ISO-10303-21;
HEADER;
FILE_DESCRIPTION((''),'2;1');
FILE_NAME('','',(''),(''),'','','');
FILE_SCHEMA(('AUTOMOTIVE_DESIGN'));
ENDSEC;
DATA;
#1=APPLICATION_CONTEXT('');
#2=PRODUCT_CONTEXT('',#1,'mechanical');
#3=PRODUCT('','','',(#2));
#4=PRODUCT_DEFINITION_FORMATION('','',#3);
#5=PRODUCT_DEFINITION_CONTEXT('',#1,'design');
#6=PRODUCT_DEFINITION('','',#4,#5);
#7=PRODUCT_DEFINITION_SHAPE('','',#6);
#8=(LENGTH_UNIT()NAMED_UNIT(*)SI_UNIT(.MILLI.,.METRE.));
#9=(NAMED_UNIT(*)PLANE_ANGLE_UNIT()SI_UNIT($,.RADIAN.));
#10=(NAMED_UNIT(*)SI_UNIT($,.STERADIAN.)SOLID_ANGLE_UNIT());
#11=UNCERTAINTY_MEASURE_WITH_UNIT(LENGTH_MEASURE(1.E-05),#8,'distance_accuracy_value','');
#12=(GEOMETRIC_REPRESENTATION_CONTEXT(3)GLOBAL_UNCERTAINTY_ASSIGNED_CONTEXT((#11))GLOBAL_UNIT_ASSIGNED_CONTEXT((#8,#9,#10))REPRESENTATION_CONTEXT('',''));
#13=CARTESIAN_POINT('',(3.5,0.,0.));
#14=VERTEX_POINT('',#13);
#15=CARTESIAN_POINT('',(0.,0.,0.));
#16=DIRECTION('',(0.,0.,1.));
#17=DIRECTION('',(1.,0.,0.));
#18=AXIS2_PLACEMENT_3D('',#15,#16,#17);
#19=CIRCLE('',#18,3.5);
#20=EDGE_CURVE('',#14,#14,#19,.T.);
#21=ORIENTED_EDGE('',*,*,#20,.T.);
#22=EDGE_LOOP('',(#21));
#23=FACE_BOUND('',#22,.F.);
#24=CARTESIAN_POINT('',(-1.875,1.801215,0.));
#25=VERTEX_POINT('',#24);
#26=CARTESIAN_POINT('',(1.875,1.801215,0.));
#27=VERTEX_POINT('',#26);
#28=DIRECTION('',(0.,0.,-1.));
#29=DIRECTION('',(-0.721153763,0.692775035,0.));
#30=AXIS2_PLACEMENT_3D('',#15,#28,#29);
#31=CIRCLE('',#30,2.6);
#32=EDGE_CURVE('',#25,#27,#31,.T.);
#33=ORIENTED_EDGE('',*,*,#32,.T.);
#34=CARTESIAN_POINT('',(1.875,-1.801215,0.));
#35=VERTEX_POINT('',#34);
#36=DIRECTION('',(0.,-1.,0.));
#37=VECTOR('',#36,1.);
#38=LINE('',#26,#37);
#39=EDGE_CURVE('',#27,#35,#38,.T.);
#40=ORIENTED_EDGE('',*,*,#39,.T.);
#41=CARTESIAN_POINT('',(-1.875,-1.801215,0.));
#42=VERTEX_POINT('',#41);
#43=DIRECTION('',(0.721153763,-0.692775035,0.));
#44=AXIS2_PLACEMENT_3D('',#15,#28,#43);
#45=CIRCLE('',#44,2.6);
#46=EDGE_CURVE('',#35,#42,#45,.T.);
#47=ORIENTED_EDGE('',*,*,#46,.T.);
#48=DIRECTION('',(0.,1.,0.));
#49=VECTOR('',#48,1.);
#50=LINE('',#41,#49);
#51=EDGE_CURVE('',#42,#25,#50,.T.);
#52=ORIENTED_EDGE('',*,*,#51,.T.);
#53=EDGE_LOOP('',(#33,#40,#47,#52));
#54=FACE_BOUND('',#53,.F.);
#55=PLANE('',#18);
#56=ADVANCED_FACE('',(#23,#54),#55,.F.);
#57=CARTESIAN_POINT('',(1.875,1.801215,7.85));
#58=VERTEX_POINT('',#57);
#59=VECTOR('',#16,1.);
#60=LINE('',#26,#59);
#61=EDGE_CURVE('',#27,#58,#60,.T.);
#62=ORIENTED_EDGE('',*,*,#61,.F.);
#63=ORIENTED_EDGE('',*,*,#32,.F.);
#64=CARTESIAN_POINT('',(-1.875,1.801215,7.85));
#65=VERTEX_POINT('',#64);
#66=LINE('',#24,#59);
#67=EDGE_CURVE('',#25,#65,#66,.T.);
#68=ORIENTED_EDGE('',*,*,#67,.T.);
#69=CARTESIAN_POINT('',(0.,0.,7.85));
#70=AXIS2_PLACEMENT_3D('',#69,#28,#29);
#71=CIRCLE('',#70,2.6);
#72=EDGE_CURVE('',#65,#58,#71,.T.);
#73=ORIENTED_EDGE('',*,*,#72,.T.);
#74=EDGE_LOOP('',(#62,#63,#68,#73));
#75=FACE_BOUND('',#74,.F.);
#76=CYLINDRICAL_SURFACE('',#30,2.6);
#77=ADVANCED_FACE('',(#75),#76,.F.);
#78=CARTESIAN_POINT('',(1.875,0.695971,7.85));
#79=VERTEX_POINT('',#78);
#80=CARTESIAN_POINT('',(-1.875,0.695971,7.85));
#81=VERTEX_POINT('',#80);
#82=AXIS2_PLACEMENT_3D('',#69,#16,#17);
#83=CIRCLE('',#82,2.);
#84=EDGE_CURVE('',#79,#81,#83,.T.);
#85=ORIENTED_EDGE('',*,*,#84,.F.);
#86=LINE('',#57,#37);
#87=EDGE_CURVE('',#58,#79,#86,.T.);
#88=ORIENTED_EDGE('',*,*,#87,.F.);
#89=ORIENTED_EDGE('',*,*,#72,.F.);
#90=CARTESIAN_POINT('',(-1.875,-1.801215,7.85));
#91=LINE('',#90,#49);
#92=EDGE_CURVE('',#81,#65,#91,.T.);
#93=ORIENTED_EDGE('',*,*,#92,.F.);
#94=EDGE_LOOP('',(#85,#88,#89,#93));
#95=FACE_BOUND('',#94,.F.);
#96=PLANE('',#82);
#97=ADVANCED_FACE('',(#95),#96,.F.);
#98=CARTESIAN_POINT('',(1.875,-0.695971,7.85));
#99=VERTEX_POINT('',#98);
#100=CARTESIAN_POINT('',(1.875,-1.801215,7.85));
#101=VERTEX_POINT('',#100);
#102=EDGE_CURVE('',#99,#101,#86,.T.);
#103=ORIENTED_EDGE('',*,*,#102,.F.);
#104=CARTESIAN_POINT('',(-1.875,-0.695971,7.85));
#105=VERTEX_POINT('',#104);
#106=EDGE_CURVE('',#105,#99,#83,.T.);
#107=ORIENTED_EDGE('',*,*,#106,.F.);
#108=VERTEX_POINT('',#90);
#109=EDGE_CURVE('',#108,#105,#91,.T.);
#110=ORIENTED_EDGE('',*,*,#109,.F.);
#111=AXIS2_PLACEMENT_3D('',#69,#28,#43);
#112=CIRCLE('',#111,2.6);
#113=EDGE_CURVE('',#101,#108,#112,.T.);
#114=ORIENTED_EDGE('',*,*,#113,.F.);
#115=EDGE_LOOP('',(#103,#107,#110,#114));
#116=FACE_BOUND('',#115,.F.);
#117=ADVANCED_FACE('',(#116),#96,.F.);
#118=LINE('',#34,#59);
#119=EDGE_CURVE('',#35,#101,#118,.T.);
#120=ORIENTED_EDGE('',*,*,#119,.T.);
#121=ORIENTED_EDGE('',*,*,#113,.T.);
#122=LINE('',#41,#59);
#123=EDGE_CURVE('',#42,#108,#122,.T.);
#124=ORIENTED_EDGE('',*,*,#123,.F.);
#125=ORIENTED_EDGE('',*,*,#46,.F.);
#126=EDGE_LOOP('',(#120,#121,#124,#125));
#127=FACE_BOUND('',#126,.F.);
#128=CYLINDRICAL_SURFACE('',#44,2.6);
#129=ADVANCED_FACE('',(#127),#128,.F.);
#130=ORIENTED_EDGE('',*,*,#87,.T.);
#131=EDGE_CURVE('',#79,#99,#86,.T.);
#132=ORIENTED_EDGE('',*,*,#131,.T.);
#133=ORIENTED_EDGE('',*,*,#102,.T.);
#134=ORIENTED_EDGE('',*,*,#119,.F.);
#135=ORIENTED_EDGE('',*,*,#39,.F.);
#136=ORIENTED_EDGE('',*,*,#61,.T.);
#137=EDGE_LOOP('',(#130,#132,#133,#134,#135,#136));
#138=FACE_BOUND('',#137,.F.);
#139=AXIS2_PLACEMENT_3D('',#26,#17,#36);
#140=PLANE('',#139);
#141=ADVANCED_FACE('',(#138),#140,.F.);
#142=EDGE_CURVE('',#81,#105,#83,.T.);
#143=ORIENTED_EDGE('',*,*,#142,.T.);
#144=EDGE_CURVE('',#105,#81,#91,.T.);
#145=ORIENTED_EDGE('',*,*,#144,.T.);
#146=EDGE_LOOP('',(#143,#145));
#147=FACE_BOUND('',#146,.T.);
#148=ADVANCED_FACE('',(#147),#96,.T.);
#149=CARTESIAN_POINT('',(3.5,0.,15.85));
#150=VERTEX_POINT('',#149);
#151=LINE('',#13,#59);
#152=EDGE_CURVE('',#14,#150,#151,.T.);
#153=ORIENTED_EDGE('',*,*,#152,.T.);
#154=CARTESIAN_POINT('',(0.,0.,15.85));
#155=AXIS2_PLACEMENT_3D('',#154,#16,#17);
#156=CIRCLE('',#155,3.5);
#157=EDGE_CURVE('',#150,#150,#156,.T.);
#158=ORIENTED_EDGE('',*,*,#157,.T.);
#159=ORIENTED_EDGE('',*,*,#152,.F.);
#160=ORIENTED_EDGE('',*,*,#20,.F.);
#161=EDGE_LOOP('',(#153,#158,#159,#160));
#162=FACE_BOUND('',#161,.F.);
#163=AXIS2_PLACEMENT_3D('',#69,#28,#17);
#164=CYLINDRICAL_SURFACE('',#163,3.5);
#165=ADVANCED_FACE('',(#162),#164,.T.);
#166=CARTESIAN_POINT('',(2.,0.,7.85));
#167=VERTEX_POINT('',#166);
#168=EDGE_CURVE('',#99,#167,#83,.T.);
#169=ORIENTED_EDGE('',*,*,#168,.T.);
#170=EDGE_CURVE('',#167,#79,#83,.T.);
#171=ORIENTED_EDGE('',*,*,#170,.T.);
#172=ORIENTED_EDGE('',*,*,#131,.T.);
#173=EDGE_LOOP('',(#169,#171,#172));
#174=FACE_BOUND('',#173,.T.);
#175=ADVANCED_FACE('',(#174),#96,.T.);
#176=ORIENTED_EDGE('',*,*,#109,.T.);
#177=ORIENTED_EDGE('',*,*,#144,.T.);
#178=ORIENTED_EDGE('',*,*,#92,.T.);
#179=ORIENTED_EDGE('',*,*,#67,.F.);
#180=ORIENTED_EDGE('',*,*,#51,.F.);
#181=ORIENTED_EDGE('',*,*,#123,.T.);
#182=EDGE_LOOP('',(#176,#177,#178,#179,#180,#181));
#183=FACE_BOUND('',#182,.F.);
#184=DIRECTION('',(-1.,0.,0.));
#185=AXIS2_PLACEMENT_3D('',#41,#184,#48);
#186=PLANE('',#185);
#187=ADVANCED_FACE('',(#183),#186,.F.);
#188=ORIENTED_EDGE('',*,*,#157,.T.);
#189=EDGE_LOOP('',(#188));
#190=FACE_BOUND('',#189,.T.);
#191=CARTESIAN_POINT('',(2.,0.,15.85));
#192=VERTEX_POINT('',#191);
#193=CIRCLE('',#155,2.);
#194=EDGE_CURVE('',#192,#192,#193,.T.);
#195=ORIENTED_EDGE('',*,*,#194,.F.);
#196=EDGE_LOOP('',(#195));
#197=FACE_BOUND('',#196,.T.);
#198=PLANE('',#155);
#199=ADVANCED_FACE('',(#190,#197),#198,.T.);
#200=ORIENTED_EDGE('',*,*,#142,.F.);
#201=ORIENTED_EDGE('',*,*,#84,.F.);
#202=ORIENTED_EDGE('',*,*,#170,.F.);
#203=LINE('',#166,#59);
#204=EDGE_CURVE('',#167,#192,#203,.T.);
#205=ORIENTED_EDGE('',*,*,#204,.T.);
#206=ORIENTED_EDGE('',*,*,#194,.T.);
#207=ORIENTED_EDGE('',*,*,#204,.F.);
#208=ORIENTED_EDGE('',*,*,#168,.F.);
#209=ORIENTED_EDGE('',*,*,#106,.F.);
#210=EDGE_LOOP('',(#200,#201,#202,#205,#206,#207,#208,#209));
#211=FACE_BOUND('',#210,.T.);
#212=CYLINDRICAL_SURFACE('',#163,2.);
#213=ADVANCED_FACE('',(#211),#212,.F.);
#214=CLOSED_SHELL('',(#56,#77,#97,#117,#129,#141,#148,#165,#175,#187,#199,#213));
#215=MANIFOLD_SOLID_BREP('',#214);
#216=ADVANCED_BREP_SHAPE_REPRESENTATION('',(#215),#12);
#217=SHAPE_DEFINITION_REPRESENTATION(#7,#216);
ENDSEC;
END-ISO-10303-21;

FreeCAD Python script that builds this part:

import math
import FreeCAD as App
import Part
import Sketcher

doc = App.newDocument("Part")
params = doc.addObject("Spreadsheet::Sheet", "Params")
for row, (alias, value) in enumerate([
    ("sketch1_diameter", "7 mm"),
    ("sketch1_radius", "2.6 mm"),
    ("pad1_length", "7.85 mm"),
    ("sketch2_diameter", "7 mm"),
    ("sketch2_diameter2", "4 mm"),
    ("pad2_length", "8 mm"),
], start=1):
    params.set(f"A{row}", alias)
    params.set(f"B{row}", "=" + value)
    params.setAlias(f"B{row}", alias)

body = doc.addObject("PartDesign::Body", "Body")

sketch1 = doc.addObject("Sketcher::SketchObject", "Sketch")
body.addObject(sketch1)
sketch1.AttachmentSupport = (doc.XY_Plane, [""])
sketch1.MapMode = "FlatFace"
sketch1.addGeometry(Part.Circle(App.Vector(0, 0, 0), App.Vector(0, 0, 1), 3.5), False)
sketch1.addGeometry(Part.ArcOfCircle(Part.Circle(App.Vector(0, 0, 0), App.Vector(0, 0, 1), 2.6), math.radians(44), math.radians(136)), False)
sketch1.addGeometry(Part.LineSegment(App.Vector(1.9, 1.8, 0), App.Vector(1.9, -1.8, 0)), False)
sketch1.addGeometry(Part.ArcOfCircle(Part.Circle(App.Vector(0, 0, 0), App.Vector(0, 0, 1), 2.6), math.radians(-136), math.radians(-44)), False)
sketch1.addGeometry(Part.LineSegment(App.Vector(-1.9, -1.8, 0), App.Vector(-1.9, 1.8, 0)), False)
sketch1.addConstraint(Sketcher.Constraint("Coincident", 1, 1, 2, 1))
sketch1.addConstraint(Sketcher.Constraint("Coincident", 2, 2, 3, 2))
sketch1.addConstraint(Sketcher.Constraint("Coincident", 3, 1, 4, 1))
sketch1.addConstraint(Sketcher.Constraint("Coincident", 4, 2, 1, 2))
sketch1.addConstraint(Sketcher.Constraint("Vertical", 2))
sketch1.addConstraint(Sketcher.Constraint("Vertical", 4))
sketch1.addConstraint(Sketcher.Constraint("Coincident", 0, 3, -1, 1))
sketch1.addConstraint(Sketcher.Constraint("Coincident", 1, 3, -1, 1))
sketch1.addConstraint(Sketcher.Constraint("Coincident", 3, 3, -1, 1))
sketch1.addConstraint(Sketcher.Constraint("Equal", 1, 3))
sketch1.addConstraint(Sketcher.Constraint("Horizontal", 2, 2, 3, 1))
sketch1.addConstraint(Sketcher.Constraint("Diameter", 0, 7.0))
sketch1.addConstraint(Sketcher.Constraint("Radius", 1, 2.6))
sketch1.addConstraint(Sketcher.Constraint("DistanceX", 3, 1, 2, 2, 3.75))
sketch1.setExpression("Constraints[11]", "Params.sketch1_diameter")
sketch1.setExpression("Constraints[12]", "Params.sketch1_radius")
pad1 = doc.addObject("PartDesign::Pad", "Pad")
body.addObject(pad1)
pad1.Profile = sketch1
pad1.setExpression("Length", "Params.pad1_length")

sketch2 = doc.addObject("Sketcher::SketchObject", "Sketch001")
body.addObject(sketch2)
sketch2.AttachmentSupport = (doc.XY_Plane, [""])
sketch2.MapMode = "FlatFace"
sketch2.AttachmentOffset = App.Placement(App.Vector(0, 0, 7.85), App.Rotation())
sketch2.addGeometry(Part.Circle(App.Vector(0, 0, 0), App.Vector(0, 0, 1), 3.5), False)
sketch2.addGeometry(Part.Circle(App.Vector(0, 0, 0), App.Vector(0, 0, 1), 2), False)
sketch2.addConstraint(Sketcher.Constraint("Coincident", 0, 3, -1, 1))
sketch2.addConstraint(Sketcher.Constraint("Coincident", 1, 3, -1, 1))
sketch2.addConstraint(Sketcher.Constraint("Diameter", 0, 7.0))
sketch2.addConstraint(Sketcher.Constraint("Diameter", 1, 4.0))
sketch2.setExpression("Constraints[2]", "Params.sketch2_diameter")
sketch2.setExpression("Constraints[3]", "Params.sketch2_diameter2")
pad2 = doc.addObject("PartDesign::Pad", "Pad001")
body.addObject(pad2)
pad2.Profile = sketch2
pad2.setExpression("Length", "Params.pad2_length")

doc.recompute()
